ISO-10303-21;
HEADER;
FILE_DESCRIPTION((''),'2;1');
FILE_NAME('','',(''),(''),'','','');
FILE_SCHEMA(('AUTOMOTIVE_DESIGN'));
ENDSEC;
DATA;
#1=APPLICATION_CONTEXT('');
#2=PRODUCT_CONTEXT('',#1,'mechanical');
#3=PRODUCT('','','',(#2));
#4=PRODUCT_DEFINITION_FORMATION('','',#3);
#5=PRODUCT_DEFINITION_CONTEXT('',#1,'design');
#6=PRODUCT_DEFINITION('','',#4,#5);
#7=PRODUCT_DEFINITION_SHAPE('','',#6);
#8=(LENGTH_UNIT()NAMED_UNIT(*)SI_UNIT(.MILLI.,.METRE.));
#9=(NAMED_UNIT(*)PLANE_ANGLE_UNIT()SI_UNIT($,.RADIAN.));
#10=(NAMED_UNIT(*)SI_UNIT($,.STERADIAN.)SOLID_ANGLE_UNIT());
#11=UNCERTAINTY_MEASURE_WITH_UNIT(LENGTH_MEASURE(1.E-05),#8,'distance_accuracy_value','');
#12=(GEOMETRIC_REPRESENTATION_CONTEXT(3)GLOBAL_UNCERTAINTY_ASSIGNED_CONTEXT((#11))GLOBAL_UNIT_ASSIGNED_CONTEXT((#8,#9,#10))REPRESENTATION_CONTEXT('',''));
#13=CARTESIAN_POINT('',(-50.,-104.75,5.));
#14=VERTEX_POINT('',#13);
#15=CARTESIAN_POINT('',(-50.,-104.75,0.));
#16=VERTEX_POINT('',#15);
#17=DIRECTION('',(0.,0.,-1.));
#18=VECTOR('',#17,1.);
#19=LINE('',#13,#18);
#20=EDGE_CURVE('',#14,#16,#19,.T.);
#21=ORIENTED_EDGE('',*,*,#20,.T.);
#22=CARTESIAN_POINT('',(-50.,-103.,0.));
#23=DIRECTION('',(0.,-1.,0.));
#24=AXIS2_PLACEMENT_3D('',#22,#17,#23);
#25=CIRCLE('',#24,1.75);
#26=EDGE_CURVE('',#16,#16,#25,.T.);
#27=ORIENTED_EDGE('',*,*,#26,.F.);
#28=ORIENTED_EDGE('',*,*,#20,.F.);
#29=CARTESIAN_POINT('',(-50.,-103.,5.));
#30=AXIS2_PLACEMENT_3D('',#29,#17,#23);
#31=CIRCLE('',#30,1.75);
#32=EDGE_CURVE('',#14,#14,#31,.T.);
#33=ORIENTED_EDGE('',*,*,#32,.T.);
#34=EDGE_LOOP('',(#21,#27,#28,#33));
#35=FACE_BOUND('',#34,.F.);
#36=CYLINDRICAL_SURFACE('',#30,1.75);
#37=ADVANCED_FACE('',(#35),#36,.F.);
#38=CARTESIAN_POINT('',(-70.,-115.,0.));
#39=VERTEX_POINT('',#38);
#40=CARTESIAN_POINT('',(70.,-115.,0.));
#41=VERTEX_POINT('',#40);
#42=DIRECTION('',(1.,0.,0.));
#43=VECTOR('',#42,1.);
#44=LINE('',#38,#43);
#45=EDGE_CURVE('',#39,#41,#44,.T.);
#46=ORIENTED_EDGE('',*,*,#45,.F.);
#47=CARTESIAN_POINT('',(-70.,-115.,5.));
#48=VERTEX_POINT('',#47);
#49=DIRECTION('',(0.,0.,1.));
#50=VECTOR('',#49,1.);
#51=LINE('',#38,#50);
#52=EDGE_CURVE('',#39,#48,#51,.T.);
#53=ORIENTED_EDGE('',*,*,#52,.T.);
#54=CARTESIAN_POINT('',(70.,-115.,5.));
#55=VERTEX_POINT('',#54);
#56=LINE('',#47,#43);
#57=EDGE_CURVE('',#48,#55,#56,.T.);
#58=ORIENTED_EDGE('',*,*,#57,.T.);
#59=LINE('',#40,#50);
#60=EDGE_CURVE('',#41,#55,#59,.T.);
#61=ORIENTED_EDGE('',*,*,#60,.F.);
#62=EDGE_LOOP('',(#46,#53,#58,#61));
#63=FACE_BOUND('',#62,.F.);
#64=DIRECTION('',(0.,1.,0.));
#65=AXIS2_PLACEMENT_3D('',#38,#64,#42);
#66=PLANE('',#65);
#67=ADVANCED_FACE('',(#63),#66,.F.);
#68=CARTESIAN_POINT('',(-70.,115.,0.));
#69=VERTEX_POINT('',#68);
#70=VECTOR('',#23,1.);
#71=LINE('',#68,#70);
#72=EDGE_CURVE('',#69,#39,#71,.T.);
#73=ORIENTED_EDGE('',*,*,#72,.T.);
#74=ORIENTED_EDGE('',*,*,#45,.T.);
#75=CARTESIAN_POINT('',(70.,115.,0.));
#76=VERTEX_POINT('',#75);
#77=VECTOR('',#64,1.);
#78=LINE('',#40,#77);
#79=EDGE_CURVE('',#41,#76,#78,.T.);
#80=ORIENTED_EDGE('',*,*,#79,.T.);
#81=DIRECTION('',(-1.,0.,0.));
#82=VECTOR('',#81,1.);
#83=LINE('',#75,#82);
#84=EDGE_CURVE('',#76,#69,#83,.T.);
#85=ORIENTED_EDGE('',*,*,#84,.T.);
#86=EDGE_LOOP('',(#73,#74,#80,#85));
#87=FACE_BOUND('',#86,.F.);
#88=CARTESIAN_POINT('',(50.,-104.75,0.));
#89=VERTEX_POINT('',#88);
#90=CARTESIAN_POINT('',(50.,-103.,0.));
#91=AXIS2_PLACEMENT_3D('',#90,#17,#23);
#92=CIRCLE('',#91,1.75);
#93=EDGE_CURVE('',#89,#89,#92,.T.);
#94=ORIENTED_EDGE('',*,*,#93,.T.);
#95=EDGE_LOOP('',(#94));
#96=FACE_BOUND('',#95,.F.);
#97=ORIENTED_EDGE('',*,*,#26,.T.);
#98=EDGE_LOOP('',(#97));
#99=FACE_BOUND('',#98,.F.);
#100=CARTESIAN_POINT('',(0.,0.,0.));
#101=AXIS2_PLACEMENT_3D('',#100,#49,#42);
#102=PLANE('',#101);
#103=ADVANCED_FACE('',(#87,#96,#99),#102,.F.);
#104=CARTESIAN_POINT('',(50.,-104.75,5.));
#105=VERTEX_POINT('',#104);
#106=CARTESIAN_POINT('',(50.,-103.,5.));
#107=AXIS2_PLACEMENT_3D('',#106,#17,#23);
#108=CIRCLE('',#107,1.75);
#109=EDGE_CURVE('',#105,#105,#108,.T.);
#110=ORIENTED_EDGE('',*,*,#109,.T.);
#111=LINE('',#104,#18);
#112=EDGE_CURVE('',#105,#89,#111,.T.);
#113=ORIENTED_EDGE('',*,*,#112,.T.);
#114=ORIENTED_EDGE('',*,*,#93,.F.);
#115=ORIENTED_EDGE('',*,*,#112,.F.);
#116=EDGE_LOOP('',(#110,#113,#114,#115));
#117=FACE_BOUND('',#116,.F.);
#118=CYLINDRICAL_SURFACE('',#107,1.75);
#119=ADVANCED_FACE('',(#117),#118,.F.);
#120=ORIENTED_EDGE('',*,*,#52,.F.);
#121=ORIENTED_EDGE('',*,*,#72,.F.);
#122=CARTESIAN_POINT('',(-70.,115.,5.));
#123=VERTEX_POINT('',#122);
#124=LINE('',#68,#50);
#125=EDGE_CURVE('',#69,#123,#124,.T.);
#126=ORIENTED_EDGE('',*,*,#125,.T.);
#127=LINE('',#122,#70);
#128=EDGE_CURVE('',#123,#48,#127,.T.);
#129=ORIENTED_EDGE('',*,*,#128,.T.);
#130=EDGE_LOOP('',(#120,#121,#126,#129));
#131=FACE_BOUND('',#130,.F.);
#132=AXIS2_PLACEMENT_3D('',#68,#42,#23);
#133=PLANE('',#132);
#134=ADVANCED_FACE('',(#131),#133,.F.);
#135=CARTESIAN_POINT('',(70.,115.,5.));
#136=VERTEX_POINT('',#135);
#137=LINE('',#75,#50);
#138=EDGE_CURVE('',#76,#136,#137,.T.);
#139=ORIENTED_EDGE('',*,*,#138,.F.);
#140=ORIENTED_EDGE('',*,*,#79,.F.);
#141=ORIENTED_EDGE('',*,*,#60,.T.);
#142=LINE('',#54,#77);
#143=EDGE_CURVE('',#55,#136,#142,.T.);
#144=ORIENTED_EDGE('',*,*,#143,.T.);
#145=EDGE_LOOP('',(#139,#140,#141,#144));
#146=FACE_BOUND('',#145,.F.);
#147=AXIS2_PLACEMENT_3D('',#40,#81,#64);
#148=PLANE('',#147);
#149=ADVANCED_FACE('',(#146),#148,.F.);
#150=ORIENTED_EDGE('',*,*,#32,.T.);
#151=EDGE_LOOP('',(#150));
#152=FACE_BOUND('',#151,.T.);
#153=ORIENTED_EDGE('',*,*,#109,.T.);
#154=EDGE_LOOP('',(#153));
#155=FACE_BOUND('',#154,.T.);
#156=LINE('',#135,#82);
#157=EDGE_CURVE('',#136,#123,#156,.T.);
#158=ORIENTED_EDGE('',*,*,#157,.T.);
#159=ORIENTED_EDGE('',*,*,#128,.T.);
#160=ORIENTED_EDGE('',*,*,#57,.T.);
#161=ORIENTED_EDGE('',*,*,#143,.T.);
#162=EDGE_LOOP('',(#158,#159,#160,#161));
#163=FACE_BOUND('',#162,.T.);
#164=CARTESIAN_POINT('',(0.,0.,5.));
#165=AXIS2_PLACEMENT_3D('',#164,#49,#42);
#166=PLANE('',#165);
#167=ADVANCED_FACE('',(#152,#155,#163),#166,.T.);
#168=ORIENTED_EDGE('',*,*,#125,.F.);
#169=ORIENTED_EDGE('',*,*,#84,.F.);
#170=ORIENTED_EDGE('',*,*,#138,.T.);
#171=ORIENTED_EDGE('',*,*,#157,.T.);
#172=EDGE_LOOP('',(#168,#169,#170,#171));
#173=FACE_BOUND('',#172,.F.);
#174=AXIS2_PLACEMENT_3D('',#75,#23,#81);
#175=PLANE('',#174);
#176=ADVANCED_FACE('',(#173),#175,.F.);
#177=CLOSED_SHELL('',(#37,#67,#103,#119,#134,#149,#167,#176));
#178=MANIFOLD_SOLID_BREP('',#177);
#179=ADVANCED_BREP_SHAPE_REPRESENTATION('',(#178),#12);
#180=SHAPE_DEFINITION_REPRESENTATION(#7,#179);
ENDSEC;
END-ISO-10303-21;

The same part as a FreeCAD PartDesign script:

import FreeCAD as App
import Part
import Sketcher
Q = App.Units.Quantity


def add_polygon(sketch, points):
    """Adds a closed chain of lines whose ends are joined by coincident constraints."""
    first, n = sketch.GeometryCount, len(points)
    for a, b in zip(points, points[1:] + points[:1]):
        sketch.addGeometry(Part.LineSegment(App.Vector(*a, 0), App.Vector(*b, 0)), False)
    for i in range(n):
        sketch.addConstraint(Sketcher.Constraint("Coincident", first + i, 2, first + (i + 1) % n, 1))

doc = App.newDocument("Part")
body = doc.addObject("PartDesign::Body", "Body")

sketch1 = doc.addObject("Sketcher::SketchObject", "Sketch")
body.addObject(sketch1)
sketch1.AttachmentSupport = (doc.XY_Plane, [""])
sketch1.MapMode = "FlatFace"
add_polygon(sketch1, [(-70, 115), (-70, -115), (70, -115), (70, 115)])
sketch1.addConstraint(Sketcher.Constraint("Vertical", 0))
sketch1.addConstraint(Sketcher.Constraint("Horizontal", 1))
sketch1.addConstraint(Sketcher.Constraint("Vertical", 2))
sketch1.addConstraint(Sketcher.Constraint("Horizontal", 3))
sketch1.addConstraint(Sketcher.Constraint("Symmetric", 0, 2, 2, 2, -1, 1))
sketch1.addConstraint(Sketcher.Constraint("DistanceX", 1, 1, 1, 2, Q("140 mm")))
sketch1.addConstraint(Sketcher.Constraint("DistanceY", 0, 2, 0, 1, Q("230 mm")))
pad1 = doc.addObject("PartDesign::Pad", "Pad")
body.addObject(pad1)
pad1.Profile = sketch1
pad1.Length = 5

sketch2 = doc.addObject("Sketcher::SketchObject", "Sketch001")
body.addObject(sketch2)
sketch2.AttachmentSupport = (doc.XY_Plane, [""])
sketch2.MapMode = "FlatFace"
sketch2.AttachmentOffset = App.Placement(App.Vector(0, 0, 5), App.Rotation())
sketch2.addGeometry(Part.Circle(App.Vector(-50, -103, 0), App.Vector(0, 0, 1), 1.8), False)
sketch2.addGeometry(Part.Circle(App.Vector(50, -103, 0), App.Vector(0, 0, 1), 1.8), False)
sketch2.addConstraint(Sketcher.Constraint("Equal", 0, 1))
sketch2.addConstraint(Sketcher.Constraint("Symmetric", 0, 3, 1, 3, -2))
sketch2.addConstraint(Sketcher.Constraint("Diameter", 0, Q("3.5 mm")))
sketch2.addConstraint(Sketcher.Constraint("DistanceX", 0, 3, -1, 1, Q("50 mm")))
sketch2.addConstraint(Sketcher.Constraint("DistanceY", 0, 3, -1, 1, Q("103 mm")))
doc.recompute()
hole = doc.addObject("PartDesign::Hole", "Hole")
body.addObject(hole)
hole.Profile = sketch2
hole.ThreadType = "None"
hole.Diameter = 3.5
hole.DepthType = "ThroughAll"

doc.recompute()
